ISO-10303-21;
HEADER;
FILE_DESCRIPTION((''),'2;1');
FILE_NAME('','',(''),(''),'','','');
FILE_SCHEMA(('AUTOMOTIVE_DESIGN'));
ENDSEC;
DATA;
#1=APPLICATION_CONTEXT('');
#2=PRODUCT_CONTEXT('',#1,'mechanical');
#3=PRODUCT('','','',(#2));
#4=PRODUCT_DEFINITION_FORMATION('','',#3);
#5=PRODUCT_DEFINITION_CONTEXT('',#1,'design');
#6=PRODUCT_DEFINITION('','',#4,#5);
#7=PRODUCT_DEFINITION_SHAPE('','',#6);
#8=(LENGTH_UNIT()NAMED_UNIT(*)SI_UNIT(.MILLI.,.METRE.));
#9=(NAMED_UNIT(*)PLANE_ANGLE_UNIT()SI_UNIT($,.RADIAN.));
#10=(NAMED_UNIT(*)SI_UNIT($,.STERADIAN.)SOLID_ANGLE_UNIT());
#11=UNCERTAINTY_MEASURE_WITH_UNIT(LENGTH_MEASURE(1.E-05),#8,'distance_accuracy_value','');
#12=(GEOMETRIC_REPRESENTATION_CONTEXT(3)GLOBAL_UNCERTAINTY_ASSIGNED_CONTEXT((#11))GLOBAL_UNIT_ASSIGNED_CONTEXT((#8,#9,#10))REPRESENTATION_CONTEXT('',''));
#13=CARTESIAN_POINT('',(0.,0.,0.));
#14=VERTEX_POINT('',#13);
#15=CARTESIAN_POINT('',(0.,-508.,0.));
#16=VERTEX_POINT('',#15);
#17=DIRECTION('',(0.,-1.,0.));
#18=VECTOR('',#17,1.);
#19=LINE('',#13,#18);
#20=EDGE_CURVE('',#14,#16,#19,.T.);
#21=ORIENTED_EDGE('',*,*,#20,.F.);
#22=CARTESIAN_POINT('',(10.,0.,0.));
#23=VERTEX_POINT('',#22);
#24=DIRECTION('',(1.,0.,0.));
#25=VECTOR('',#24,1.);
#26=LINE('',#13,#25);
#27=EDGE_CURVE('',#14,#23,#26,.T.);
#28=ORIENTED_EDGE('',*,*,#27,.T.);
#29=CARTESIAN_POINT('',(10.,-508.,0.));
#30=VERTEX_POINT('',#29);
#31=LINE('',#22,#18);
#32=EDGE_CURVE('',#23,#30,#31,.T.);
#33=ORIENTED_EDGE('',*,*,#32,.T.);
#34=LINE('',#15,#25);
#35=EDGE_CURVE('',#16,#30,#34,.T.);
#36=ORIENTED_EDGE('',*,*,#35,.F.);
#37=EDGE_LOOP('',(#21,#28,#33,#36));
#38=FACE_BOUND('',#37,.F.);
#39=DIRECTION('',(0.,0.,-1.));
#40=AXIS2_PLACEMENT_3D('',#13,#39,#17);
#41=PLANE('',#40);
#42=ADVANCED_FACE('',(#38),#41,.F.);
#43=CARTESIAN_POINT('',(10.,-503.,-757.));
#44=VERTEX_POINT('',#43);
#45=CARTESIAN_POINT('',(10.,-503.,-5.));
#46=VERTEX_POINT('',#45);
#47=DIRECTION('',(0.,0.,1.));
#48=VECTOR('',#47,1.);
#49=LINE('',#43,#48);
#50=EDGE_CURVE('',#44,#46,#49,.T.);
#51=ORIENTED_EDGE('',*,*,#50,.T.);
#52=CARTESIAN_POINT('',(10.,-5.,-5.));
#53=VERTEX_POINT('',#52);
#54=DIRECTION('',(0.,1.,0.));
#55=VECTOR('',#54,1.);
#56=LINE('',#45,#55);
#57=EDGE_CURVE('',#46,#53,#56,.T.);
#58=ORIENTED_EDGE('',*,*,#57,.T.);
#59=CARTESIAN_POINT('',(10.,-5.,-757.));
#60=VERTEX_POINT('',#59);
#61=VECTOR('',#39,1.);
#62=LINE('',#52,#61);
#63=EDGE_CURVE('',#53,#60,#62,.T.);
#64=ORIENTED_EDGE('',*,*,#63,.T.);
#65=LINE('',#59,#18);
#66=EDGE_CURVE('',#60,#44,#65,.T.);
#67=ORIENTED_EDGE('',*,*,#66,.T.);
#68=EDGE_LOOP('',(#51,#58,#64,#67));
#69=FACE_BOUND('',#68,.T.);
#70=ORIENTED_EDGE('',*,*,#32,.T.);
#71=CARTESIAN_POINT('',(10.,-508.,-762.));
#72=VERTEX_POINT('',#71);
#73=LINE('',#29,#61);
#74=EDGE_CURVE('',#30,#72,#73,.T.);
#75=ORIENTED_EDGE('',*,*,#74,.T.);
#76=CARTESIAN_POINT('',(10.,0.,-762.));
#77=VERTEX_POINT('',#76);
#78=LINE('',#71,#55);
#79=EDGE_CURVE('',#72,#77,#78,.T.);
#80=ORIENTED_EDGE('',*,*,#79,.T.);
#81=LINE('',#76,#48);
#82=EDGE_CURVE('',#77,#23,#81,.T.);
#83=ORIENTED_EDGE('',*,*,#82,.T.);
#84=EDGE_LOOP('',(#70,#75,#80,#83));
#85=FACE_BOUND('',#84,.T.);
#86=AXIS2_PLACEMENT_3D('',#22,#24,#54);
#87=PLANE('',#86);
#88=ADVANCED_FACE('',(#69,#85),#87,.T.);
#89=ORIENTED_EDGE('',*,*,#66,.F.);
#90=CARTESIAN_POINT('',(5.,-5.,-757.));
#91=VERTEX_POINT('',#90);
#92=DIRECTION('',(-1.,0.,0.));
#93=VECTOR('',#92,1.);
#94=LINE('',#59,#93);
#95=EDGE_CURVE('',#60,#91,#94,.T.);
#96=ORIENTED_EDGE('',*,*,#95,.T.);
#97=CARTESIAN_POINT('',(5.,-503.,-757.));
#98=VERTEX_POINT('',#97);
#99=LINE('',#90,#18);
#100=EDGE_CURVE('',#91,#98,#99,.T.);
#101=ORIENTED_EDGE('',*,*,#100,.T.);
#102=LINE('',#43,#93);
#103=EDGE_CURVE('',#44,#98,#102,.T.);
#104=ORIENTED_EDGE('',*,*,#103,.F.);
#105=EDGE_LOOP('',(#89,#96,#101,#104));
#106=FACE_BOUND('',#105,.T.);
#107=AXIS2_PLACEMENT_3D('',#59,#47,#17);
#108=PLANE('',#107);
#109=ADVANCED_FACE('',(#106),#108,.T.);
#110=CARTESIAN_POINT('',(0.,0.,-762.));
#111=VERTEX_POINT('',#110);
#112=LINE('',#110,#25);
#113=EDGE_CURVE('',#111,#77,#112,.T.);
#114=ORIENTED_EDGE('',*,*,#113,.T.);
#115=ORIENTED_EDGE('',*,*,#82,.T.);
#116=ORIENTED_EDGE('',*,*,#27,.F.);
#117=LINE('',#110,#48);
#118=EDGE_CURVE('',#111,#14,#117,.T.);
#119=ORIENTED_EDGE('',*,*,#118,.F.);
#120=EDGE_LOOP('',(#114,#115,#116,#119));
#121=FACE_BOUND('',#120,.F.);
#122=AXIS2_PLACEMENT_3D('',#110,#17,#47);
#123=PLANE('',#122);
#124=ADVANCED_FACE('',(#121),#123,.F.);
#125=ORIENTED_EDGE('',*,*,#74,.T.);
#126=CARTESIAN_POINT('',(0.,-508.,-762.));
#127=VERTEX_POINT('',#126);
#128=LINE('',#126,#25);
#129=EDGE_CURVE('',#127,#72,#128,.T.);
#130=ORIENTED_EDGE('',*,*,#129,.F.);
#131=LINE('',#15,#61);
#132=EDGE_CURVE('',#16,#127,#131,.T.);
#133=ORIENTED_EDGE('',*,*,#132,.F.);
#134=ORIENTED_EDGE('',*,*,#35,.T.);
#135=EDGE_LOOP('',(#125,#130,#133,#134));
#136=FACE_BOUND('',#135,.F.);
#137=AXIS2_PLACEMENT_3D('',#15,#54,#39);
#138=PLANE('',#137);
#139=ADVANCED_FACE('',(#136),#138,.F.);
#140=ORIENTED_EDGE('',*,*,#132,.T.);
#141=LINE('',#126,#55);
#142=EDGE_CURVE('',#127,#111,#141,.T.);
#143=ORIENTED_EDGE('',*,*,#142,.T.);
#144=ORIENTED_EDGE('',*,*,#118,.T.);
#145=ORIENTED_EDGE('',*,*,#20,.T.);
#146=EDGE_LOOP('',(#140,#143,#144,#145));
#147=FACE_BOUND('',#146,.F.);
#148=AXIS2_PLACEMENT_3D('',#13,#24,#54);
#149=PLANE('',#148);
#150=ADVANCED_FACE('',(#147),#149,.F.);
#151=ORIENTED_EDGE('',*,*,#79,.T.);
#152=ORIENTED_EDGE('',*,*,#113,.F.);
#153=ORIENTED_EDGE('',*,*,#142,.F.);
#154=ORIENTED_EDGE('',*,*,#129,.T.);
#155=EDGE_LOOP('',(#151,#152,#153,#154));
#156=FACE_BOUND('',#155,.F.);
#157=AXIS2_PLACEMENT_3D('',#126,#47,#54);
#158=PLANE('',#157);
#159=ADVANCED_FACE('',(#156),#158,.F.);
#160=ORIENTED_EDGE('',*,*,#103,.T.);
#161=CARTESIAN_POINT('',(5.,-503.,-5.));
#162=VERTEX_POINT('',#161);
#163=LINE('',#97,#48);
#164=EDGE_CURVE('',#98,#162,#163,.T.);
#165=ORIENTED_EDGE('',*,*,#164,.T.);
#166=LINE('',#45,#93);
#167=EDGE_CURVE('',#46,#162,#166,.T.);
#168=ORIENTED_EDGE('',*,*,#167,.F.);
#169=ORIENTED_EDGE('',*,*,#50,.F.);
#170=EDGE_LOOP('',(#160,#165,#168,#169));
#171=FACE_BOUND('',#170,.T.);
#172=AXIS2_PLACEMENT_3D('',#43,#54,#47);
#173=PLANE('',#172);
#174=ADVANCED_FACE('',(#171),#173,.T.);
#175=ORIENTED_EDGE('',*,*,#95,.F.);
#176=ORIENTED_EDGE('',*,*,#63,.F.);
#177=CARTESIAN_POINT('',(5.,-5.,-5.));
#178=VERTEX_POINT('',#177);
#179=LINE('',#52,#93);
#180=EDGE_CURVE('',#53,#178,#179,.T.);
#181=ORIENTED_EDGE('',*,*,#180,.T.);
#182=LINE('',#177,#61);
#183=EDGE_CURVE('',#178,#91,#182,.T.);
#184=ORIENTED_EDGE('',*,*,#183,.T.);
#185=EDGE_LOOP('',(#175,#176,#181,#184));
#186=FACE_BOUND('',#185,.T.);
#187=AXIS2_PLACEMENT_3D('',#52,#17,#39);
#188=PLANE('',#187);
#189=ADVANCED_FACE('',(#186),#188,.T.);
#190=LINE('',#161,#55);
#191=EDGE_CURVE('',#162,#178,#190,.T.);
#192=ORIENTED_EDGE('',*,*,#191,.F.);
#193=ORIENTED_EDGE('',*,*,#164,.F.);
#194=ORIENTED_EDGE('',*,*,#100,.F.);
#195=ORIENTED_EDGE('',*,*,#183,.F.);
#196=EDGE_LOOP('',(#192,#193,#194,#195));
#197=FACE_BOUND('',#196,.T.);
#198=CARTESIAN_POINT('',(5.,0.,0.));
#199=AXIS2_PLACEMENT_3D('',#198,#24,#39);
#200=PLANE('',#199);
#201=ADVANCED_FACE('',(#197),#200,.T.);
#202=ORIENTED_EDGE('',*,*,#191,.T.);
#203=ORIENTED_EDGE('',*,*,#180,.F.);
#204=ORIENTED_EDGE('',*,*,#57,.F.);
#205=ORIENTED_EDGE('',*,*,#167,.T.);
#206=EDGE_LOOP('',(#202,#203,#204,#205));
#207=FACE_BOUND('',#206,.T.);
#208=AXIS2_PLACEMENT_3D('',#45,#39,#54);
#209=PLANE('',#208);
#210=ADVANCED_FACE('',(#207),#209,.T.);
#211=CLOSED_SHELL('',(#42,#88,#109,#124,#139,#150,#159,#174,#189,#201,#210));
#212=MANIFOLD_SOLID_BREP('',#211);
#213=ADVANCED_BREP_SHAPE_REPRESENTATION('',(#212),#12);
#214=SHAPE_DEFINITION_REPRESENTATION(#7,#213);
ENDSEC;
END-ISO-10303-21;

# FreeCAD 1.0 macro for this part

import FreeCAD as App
import Part
import Sketcher
from FreeCAD import Vector
Q = App.Units.Quantity


def add_polygon(sketch, points):
    """Adds a closed chain of lines whose ends are joined by coincident constraints."""
    first, n = sketch.GeometryCount, len(points)
    for a, b in zip(points, points[1:] + points[:1]):
        sketch.addGeometry(Part.LineSegment(App.Vector(*a, 0), App.Vector(*b, 0)), False)
    for i in range(n):
        sketch.addConstraint(Sketcher.Constraint("Coincident", first + i, 2, first + (i + 1) % n, 1))

doc = App.newDocument("Part")
body = doc.addObject("PartDesign::Body", "Body")

# Sketch on YZ plane
sketch1 = body.newObject("Sketcher::SketchObject", "Sketch")
sketch1.AttachmentSupport = (doc.getObject("YZ_Plane"), [""])
sketch1.MapMode = "FlatFace"
add_polygon(sketch1, [(0, -762), (0, 0), (-508, 0), (-508, -762)])  # lines 0-3
sketch1.addConstraint([
    Sketcher.Constraint("Vertical", 0),
    Sketcher.Constraint("Horizontal", 1),
    Sketcher.Constraint("Vertical", 2),
    Sketcher.Constraint("Horizontal", 3),
    Sketcher.Constraint("Coincident", 0, 2, -1, 1),
    Sketcher.Constraint("DistanceX", 1, 2, 1, 1, Q("20 in")),
    Sketcher.Constraint("DistanceY", 0, 1, 0, 2, Q("30 in")),
])
pad1 = body.newObject("PartDesign::Pad", "Pad")
pad1.Profile = sketch1
pad1.Length = Q("0.3937008 in")

# Sketch on YZ plane
sketch2 = body.newObject("Sketcher::SketchObject", "Sketch001")
sketch2.AttachmentSupport = (doc.getObject("YZ_Plane"), [""])
sketch2.MapMode = "FlatFace"
sketch2.AttachmentOffset = App.Placement(Vector(0, 0, 0.3937008 * 25.4), App.Rotation())
add_polygon(sketch2, [(-5, -757), (-5, -5), (-503, -5), (-503, -757)])  # lines 0-3
sketch2.addConstraint([
    Sketcher.Constraint("Vertical", 0),
    Sketcher.Constraint("Horizontal", 1),
    Sketcher.Constraint("Vertical", 2),
    Sketcher.Constraint("Horizontal", 3),
    Sketcher.Constraint("DistanceX", 0, 2, -1, 1, Q("5 mm")),
    Sketcher.Constraint("DistanceY", 0, 2, -1, 1, Q("5 mm")),
    Sketcher.Constraint("DistanceX", 1, 2, 1, 1, Q("19.6063 in")),
    Sketcher.Constraint("DistanceY", 0, 1, 0, 2, Q("29.6063 in")),
])
pocket1 = body.newObject("PartDesign::Pocket", "Pocket")
pocket1.Profile = sketch2
pocket1.Length = 5

doc.recompute()
